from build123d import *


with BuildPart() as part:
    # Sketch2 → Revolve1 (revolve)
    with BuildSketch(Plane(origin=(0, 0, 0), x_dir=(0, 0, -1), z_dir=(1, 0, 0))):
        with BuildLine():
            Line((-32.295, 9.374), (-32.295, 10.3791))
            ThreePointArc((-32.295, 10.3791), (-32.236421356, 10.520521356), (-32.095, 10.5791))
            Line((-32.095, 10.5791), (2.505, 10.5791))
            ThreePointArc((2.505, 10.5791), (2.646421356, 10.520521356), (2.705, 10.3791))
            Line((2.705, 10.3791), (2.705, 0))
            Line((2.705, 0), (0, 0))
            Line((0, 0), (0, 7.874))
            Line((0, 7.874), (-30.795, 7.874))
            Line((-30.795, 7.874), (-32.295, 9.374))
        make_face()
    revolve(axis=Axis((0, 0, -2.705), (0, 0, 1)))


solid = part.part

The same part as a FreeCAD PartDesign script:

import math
import FreeCAD as App
import Part
import Sketcher
Q = App.Units.Quantity

doc = App.newDocument("Part")
body = doc.addObject("PartDesign::Body", "Body")

# Sketch on YZ plane
sketch1 = body.newObject("Sketcher::SketchObject", "Sketch")
sketch1.AttachmentSupport = (doc.getObject("YZ_Plane"), [""])
sketch1.MapMode = "FlatFace"
sketch1.addGeometry([
    Part.LineSegment(App.Vector(10.38, 32.3, 0), App.Vector(9.37, 32.3, 0)),  # 0
    Part.LineSegment(App.Vector(9.37, 32.3, 0), App.Vector(7.87, 30.8, 0)),  # 1
    Part.LineSegment(App.Vector(7.87, 30.8, 0), App.Vector(7.87, 0, 0)),  # 2
    Part.LineSegment(App.Vector(7.87, 0, 0), App.Vector(0, 0, 0)),  # 3
    Part.LineSegment(App.Vector(0, 0, 0), App.Vector(0, -2.71, 0)),  # 4
    Part.LineSegment(App.Vector(0, -2.71, 0), App.Vector(10.38, -2.71, 0)),  # 5
    Part.ArcOfCircle(Part.Circle(App.Vector(10.38, -2.5, 0), App.Vector(0, 0, 1), 0.2), math.radians(-90), math.radians(0)),  # 6
    Part.LineSegment(App.Vector(10.58, -2.5, 0), App.Vector(10.58, 32.09, 0)),  # 7
    Part.ArcOfCircle(Part.Circle(App.Vector(10.38, 32.09, 0), App.Vector(0, 0, 1), 0.2), math.radians(0), math.radians(90)),  # 8
], False)
sketch1.addConstraint([
    Sketcher.Constraint("Coincident", 0, 2, 1, 1),
    Sketcher.Constraint("Coincident", 1, 2, 2, 1),
    Sketcher.Constraint("Coincident", 2, 2, 3, 1),
    Sketcher.Constraint("Coincident", 3, 2, 4, 1),
    Sketcher.Constraint("Coincident", 4, 2, 5, 1),
    Sketcher.Constraint("Tangent", 5, 2, 6, 1),
    Sketcher.Constraint("Tangent", 6, 2, 7, 1),
    Sketcher.Constraint("Tangent", 7, 2, 8, 1),
    Sketcher.Constraint("Tangent", 8, 2, 0, 1),
    Sketcher.Constraint("Horizontal", 0),
    Sketcher.Constraint("Vertical", 2),
    Sketcher.Constraint("Horizontal", 3),
    Sketcher.Constraint("Vertical", 4),
    Sketcher.Constraint("Horizontal", 5),
    Sketcher.Constraint("Vertical", 7),
    Sketcher.Constraint("Coincident", 3, 2, -1, 1),
    Sketcher.Constraint("Equal", 6, 8),
    Sketcher.Constraint("Radius", 6, Q("0.2 mm")),
    Sketcher.Constraint("Angle", 1, Q("-135 deg")),
    Sketcher.Constraint("DistanceY", 7, 1, 7, 2, Q("34.6 mm")),
    Sketcher.Constraint("DistanceX", 1, 2, 0, 2, Q("1.5 mm")),
    Sketcher.Constraint("DistanceX", 3, 2, 3, 1, Q("7.874 mm")),
    Sketcher.Constraint("DistanceY", 2, 2, 2, 1, Q("30.795 mm")),
    Sketcher.Constraint("DistanceX", 0, 2, 0, 1, Q("1.0051 mm")),
])
revolution = body.newObject("PartDesign::Revolution", "Revolution")
revolution.Profile = sketch1
revolution.ReferenceAxis = (sketch1, ["V_Axis"])
revolution.Angle = 360

doc.recompute()
